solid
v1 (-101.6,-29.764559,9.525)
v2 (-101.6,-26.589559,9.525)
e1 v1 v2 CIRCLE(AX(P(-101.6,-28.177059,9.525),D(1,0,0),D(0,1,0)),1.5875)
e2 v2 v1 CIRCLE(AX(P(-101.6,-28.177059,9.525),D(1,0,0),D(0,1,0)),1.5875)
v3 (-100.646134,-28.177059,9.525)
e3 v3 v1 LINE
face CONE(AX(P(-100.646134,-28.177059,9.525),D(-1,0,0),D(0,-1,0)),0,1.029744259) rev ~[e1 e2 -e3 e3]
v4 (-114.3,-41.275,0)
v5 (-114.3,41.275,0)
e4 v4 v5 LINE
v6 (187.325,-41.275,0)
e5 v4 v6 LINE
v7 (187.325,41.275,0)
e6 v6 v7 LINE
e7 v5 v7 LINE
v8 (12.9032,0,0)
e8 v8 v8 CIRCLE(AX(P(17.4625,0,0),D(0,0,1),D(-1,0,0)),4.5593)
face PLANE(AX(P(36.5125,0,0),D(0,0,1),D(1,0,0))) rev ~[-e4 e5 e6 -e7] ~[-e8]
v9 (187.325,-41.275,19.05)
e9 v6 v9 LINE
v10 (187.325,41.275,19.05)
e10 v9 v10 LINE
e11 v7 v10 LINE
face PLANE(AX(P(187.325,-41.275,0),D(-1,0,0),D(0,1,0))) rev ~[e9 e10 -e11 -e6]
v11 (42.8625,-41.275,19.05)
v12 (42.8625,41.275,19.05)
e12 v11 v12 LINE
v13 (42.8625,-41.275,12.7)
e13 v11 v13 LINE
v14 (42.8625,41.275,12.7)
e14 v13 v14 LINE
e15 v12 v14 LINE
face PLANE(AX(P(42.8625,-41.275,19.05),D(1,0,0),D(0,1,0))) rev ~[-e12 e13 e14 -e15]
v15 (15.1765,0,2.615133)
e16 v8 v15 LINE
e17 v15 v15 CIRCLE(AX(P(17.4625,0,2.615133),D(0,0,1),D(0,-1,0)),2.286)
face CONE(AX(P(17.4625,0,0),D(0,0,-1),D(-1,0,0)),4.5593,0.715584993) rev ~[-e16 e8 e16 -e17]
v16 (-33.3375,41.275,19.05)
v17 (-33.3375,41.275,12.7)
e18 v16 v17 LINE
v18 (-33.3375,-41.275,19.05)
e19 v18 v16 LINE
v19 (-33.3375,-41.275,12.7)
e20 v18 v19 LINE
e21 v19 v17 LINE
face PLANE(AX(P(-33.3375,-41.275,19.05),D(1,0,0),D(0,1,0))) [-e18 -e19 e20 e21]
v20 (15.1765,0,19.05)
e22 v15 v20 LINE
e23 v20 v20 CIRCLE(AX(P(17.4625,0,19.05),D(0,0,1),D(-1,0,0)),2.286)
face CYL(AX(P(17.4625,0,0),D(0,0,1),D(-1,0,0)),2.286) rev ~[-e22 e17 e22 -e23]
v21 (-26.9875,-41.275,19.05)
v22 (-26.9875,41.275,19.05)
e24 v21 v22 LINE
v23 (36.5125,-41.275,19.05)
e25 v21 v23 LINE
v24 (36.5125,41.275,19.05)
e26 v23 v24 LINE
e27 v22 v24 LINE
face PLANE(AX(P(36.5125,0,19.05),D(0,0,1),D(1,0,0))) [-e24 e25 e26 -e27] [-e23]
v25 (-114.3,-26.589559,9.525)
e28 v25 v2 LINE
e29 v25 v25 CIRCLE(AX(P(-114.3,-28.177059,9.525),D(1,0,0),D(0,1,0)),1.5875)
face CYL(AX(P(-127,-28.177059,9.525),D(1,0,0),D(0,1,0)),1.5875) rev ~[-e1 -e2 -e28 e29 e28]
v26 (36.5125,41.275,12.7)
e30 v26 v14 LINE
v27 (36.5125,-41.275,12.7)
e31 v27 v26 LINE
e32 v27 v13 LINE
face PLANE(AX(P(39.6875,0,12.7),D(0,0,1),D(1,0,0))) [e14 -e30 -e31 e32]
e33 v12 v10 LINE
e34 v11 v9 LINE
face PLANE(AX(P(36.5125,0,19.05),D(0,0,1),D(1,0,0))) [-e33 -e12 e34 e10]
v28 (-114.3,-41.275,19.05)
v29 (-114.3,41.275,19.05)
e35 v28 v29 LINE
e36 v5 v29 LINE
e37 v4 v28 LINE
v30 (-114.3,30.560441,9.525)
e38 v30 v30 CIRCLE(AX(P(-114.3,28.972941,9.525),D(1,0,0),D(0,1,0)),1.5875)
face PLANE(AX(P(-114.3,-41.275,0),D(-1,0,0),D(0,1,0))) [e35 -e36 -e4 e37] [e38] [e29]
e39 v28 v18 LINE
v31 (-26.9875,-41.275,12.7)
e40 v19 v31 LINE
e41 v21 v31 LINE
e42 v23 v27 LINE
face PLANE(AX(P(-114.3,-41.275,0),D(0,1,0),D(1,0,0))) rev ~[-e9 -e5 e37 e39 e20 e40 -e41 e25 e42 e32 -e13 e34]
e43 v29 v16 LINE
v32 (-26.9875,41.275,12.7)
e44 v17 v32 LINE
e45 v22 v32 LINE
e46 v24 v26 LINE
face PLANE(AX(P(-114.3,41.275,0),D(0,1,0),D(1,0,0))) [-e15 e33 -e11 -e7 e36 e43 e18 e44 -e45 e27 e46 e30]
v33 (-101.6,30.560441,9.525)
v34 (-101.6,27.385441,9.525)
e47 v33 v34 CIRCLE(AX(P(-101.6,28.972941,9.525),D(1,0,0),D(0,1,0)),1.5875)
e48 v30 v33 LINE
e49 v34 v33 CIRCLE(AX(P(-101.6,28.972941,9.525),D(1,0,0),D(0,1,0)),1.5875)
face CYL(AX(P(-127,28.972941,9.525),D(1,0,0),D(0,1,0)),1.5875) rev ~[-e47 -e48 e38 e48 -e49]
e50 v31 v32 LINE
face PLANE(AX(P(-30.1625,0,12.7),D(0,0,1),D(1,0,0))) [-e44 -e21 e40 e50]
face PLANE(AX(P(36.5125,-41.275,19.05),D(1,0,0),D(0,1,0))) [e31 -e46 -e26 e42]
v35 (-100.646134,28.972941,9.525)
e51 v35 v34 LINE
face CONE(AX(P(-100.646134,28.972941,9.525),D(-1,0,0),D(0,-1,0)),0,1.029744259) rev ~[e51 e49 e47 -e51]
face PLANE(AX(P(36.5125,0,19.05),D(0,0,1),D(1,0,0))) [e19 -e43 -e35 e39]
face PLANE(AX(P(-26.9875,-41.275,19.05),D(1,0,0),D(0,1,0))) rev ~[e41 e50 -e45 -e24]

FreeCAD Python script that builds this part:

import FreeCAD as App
import Part
import Sketcher
from FreeCAD import Vector
Q = App.Units.Quantity

doc = App.newDocument("Part")
body = doc.addObject("PartDesign::Body", "Body")

# Sketch on XY plane
sketch1 = body.newObject("Sketcher::SketchObject", "Sketch")
sketch1.AttachmentSupport = (doc.getObject("XY_Plane"), [""])
sketch1.MapMode = "FlatFace"
sketch1.addGeometry(Part.LineSegment(Vector(-114, 41, 0), Vector(-114, -41, 0)), False)
sketch1.addGeometry(Part.LineSegment(Vector(-114, -41, 0), Vector(187, -41, 0)), False)
sketch1.addGeometry(Part.LineSegment(Vector(187, -41, 0), Vector(187, 41, 0)), False)
sketch1.addGeometry(Part.LineSegment(Vector(187, 41, 0), Vector(-114, 41, 0)), False)
sketch1.addConstraint(Sketcher.Constraint("Coincident", 0, 2, 1, 1))
sketch1.addConstraint(Sketcher.Constraint("Coincident", 1, 2, 2, 1))
sketch1.addConstraint(Sketcher.Constraint("Coincident", 2, 2, 3, 1))
sketch1.addConstraint(Sketcher.Constraint("Coincident", 3, 2, 0, 1))
sketch1.addConstraint(Sketcher.Constraint("Vertical", 0))
sketch1.addConstraint(Sketcher.Constraint("Horizontal", 1))
sketch1.addConstraint(Sketcher.Constraint("Vertical", 2))
sketch1.addConstraint(Sketcher.Constraint("Horizontal", 3))
sketch1.addConstraint(Sketcher.Constraint("DistanceY", 0, 2, 0, 1, Q("3.25 in")))
sketch1.addConstraint(Sketcher.Constraint("DistanceX", 0, 2, -1, 1, Q("4.5 in")))
sketch1.addConstraint(Sketcher.Constraint("DistanceX", 1, 1, 1, 2, Q("11.875 in")))
sketch1.addConstraint(Sketcher.Constraint("DistanceY", 0, 2, -1, 1, Q("1.625 in")))
pad1 = body.newObject("PartDesign::Pad", "Pad")
pad1.Profile = sketch1
pad1.Length = Q("0.75 in")

# Sketch on XY plane
sketch2 = body.newObject("Sketcher::SketchObject", "Sketch001")
sketch2.AttachmentSupport = (doc.getObject("XY_Plane"), [""])
sketch2.MapMode = "FlatFace"
sketch2.AttachmentOffset = App.Placement(Vector(0, 0, 0.75 * 25.4), App.Rotation())
sketch2.addGeometry(Part.LineSegment(Vector(-33, 41, 0), Vector(-33, -41, 0)), False)
sketch2.addGeometry(Part.LineSegment(Vector(-33, -41, 0), Vector(-27, -41, 0)), False)
sketch2.addGeometry(Part.LineSegment(Vector(-27, -41, 0), Vector(-27, 41, 0)), False)
sketch2.addGeometry(Part.LineSegment(Vector(-27, 41, 0), Vector(-33, 41, 0)), False)
sketch2.addGeometry(Part.LineSegment(Vector(37, 41, 0), Vector(37, -41, 0)), False)
sketch2.addGeometry(Part.LineSegment(Vector(37, -41, 0), Vector(43, -41, 0)), False)
sketch2.addGeometry(Part.LineSegment(Vector(43, -41, 0), Vector(43, 41, 0)), False)
sketch2.addGeometry(Part.LineSegment(Vector(43, 41, 0), Vector(37, 41, 0)), False)
sketch2.addConstraint(Sketcher.Constraint("Coincident", 0, 2, 1, 1))
sketch2.addConstraint(Sketcher.Constraint("Coincident", 1, 2, 2, 1))
sketch2.addConstraint(Sketcher.Constraint("Coincident", 2, 2, 3, 1))
sketch2.addConstraint(Sketcher.Constraint("Coincident", 3, 2, 0, 1))
sketch2.addConstraint(Sketcher.Constraint("Coincident", 4, 2, 5, 1))
sketch2.addConstraint(Sketcher.Constraint("Coincident", 5, 2, 6, 1))
sketch2.addConstraint(Sketcher.Constraint("Coincident", 6, 2, 7, 1))
sketch2.addConstraint(Sketcher.Constraint("Coincident", 7, 2, 4, 1))
sketch2.addConstraint(Sketcher.Constraint("Vertical", 0))
sketch2.addConstraint(Sketcher.Constraint("Horizontal", 1))
sketch2.addConstraint(Sketcher.Constraint("Vertical", 2))
sketch2.addConstraint(Sketcher.Constraint("Horizontal", 3))
sketch2.addConstraint(Sketcher.Constraint("Vertical", 4))
sketch2.addConstraint(Sketcher.Constraint("Horizontal", 5))
sketch2.addConstraint(Sketcher.Constraint("Vertical", 6))
sketch2.addConstraint(Sketcher.Constraint("Horizontal", 7))
sketch2.addConstraint(Sketcher.Constraint("Horizontal", 1, 2, 4, 2))
sketch2.addConstraint(Sketcher.Constraint("Horizontal", 3, 2, 6, 2))
sketch2.addConstraint(Sketcher.Constraint("Equal", 3, 5))
sketch2.addConstraint(Sketcher.Constraint("DistanceX", 0, 2, 5, 2, Q("3 in")))
sketch2.addConstraint(Sketcher.Constraint("DistanceX", 1, 1, 1, 2, Q("0.25 in")))
sketch2.addConstraint(Sketcher.Constraint("DistanceY", 0, 2, 0, 1, Q("3.25 in")))
sketch2.addConstraint(Sketcher.Constraint("DistanceX", 0, 2, -1, 1, Q("1.3125 in")))
sketch2.addConstraint(Sketcher.Constraint("DistanceY", 0, 2, -1, 1, Q("1.625 in")))
pocket1 = body.newObject("PartDesign::Pocket", "Pocket")
pocket1.Profile = sketch2
pocket1.Length = Q("0.25 in")

# Sketch on XY plane
sketch3 = body.newObject("Sketcher::SketchObject", "Sketch002")
sketch3.AttachmentSupport = (doc.getObject("XY_Plane"), [""])
sketch3.MapMode = "FlatFace"
sketch3.addGeometry(Part.Circle(Vector(17.5, 0, 0), Vector(0, 0, 1), 2.3), False)
sketch3.addConstraint(Sketcher.Constraint("PointOnObject", 0, 3, -1))
sketch3.addConstraint(Sketcher.Constraint("Diameter", 0, Q("0.18 in")))
sketch3.addConstraint(Sketcher.Constraint("DistanceX", -1, 1, 0, 3, Q("0.6875 in")))
doc.recompute()
hole = body.newObject("PartDesign::Hole", "Hole")
hole.Profile = sketch3
hole.ThreadType = "None"
hole.Diameter = Q("0.18 in")
hole.DepthType = "ThroughAll"
hole.HoleCutType = "Countersink"
hole.HoleCutDiameter = Q("0.359 in")
hole.HoleCutCountersinkAngle = 82
hole.Reversed = True

# Sketch on YZ plane
sketch4 = body.newObject("Sketcher::SketchObject", "Sketch003")
sketch4.AttachmentSupport = (doc.getObject("YZ_Plane"), [""])
sketch4.MapMode = "FlatFace"
sketch4.AttachmentOffset = App.Placement(Vector(0, 0, -4.5 * 25.4), App.Rotation())
sketch4.addGeometry(Part.Circle(Vector(29, 9.5, 0), Vector(0, 0, 1), 1.6), False)
sketch4.addGeometry(Part.Circle(Vector(-28.2, 9.5, 0), Vector(0, 0, 1), 1.6), False)
sketch4.addConstraint(Sketcher.Constraint("Equal", 0, 1))
sketch4.addConstraint(Sketcher.Constraint("Horizontal", 0, 3, 1, 3))
sketch4.addConstraint(Sketcher.Constraint("Diameter", 0, Q("0.125 in")))
sketch4.addConstraint(Sketcher.Constraint("DistanceX", 1, 3, 0, 3, Q("2.25 in")))
sketch4.addConstraint(Sketcher.Constraint("DistanceY", -1, 1, 0, 3, Q("0.375 in")))
sketch4.addConstraint(Sketcher.Constraint("DistanceX", -1, 1, 0, 3, 28.972941))
doc.recompute()
hole2 = body.newObject("PartDesign::Hole", "Hole001")
hole2.Profile = sketch4
hole2.ThreadType = "None"
hole2.Diameter = Q("0.125 in")
hole2.DepthType = "Dimension"
hole2.Depth = Q("0.5 in")
hole2.DrillPoint = "Angled"
hole2.DrillPointAngle = 118
hole2.Reversed = True

doc.recompute()
